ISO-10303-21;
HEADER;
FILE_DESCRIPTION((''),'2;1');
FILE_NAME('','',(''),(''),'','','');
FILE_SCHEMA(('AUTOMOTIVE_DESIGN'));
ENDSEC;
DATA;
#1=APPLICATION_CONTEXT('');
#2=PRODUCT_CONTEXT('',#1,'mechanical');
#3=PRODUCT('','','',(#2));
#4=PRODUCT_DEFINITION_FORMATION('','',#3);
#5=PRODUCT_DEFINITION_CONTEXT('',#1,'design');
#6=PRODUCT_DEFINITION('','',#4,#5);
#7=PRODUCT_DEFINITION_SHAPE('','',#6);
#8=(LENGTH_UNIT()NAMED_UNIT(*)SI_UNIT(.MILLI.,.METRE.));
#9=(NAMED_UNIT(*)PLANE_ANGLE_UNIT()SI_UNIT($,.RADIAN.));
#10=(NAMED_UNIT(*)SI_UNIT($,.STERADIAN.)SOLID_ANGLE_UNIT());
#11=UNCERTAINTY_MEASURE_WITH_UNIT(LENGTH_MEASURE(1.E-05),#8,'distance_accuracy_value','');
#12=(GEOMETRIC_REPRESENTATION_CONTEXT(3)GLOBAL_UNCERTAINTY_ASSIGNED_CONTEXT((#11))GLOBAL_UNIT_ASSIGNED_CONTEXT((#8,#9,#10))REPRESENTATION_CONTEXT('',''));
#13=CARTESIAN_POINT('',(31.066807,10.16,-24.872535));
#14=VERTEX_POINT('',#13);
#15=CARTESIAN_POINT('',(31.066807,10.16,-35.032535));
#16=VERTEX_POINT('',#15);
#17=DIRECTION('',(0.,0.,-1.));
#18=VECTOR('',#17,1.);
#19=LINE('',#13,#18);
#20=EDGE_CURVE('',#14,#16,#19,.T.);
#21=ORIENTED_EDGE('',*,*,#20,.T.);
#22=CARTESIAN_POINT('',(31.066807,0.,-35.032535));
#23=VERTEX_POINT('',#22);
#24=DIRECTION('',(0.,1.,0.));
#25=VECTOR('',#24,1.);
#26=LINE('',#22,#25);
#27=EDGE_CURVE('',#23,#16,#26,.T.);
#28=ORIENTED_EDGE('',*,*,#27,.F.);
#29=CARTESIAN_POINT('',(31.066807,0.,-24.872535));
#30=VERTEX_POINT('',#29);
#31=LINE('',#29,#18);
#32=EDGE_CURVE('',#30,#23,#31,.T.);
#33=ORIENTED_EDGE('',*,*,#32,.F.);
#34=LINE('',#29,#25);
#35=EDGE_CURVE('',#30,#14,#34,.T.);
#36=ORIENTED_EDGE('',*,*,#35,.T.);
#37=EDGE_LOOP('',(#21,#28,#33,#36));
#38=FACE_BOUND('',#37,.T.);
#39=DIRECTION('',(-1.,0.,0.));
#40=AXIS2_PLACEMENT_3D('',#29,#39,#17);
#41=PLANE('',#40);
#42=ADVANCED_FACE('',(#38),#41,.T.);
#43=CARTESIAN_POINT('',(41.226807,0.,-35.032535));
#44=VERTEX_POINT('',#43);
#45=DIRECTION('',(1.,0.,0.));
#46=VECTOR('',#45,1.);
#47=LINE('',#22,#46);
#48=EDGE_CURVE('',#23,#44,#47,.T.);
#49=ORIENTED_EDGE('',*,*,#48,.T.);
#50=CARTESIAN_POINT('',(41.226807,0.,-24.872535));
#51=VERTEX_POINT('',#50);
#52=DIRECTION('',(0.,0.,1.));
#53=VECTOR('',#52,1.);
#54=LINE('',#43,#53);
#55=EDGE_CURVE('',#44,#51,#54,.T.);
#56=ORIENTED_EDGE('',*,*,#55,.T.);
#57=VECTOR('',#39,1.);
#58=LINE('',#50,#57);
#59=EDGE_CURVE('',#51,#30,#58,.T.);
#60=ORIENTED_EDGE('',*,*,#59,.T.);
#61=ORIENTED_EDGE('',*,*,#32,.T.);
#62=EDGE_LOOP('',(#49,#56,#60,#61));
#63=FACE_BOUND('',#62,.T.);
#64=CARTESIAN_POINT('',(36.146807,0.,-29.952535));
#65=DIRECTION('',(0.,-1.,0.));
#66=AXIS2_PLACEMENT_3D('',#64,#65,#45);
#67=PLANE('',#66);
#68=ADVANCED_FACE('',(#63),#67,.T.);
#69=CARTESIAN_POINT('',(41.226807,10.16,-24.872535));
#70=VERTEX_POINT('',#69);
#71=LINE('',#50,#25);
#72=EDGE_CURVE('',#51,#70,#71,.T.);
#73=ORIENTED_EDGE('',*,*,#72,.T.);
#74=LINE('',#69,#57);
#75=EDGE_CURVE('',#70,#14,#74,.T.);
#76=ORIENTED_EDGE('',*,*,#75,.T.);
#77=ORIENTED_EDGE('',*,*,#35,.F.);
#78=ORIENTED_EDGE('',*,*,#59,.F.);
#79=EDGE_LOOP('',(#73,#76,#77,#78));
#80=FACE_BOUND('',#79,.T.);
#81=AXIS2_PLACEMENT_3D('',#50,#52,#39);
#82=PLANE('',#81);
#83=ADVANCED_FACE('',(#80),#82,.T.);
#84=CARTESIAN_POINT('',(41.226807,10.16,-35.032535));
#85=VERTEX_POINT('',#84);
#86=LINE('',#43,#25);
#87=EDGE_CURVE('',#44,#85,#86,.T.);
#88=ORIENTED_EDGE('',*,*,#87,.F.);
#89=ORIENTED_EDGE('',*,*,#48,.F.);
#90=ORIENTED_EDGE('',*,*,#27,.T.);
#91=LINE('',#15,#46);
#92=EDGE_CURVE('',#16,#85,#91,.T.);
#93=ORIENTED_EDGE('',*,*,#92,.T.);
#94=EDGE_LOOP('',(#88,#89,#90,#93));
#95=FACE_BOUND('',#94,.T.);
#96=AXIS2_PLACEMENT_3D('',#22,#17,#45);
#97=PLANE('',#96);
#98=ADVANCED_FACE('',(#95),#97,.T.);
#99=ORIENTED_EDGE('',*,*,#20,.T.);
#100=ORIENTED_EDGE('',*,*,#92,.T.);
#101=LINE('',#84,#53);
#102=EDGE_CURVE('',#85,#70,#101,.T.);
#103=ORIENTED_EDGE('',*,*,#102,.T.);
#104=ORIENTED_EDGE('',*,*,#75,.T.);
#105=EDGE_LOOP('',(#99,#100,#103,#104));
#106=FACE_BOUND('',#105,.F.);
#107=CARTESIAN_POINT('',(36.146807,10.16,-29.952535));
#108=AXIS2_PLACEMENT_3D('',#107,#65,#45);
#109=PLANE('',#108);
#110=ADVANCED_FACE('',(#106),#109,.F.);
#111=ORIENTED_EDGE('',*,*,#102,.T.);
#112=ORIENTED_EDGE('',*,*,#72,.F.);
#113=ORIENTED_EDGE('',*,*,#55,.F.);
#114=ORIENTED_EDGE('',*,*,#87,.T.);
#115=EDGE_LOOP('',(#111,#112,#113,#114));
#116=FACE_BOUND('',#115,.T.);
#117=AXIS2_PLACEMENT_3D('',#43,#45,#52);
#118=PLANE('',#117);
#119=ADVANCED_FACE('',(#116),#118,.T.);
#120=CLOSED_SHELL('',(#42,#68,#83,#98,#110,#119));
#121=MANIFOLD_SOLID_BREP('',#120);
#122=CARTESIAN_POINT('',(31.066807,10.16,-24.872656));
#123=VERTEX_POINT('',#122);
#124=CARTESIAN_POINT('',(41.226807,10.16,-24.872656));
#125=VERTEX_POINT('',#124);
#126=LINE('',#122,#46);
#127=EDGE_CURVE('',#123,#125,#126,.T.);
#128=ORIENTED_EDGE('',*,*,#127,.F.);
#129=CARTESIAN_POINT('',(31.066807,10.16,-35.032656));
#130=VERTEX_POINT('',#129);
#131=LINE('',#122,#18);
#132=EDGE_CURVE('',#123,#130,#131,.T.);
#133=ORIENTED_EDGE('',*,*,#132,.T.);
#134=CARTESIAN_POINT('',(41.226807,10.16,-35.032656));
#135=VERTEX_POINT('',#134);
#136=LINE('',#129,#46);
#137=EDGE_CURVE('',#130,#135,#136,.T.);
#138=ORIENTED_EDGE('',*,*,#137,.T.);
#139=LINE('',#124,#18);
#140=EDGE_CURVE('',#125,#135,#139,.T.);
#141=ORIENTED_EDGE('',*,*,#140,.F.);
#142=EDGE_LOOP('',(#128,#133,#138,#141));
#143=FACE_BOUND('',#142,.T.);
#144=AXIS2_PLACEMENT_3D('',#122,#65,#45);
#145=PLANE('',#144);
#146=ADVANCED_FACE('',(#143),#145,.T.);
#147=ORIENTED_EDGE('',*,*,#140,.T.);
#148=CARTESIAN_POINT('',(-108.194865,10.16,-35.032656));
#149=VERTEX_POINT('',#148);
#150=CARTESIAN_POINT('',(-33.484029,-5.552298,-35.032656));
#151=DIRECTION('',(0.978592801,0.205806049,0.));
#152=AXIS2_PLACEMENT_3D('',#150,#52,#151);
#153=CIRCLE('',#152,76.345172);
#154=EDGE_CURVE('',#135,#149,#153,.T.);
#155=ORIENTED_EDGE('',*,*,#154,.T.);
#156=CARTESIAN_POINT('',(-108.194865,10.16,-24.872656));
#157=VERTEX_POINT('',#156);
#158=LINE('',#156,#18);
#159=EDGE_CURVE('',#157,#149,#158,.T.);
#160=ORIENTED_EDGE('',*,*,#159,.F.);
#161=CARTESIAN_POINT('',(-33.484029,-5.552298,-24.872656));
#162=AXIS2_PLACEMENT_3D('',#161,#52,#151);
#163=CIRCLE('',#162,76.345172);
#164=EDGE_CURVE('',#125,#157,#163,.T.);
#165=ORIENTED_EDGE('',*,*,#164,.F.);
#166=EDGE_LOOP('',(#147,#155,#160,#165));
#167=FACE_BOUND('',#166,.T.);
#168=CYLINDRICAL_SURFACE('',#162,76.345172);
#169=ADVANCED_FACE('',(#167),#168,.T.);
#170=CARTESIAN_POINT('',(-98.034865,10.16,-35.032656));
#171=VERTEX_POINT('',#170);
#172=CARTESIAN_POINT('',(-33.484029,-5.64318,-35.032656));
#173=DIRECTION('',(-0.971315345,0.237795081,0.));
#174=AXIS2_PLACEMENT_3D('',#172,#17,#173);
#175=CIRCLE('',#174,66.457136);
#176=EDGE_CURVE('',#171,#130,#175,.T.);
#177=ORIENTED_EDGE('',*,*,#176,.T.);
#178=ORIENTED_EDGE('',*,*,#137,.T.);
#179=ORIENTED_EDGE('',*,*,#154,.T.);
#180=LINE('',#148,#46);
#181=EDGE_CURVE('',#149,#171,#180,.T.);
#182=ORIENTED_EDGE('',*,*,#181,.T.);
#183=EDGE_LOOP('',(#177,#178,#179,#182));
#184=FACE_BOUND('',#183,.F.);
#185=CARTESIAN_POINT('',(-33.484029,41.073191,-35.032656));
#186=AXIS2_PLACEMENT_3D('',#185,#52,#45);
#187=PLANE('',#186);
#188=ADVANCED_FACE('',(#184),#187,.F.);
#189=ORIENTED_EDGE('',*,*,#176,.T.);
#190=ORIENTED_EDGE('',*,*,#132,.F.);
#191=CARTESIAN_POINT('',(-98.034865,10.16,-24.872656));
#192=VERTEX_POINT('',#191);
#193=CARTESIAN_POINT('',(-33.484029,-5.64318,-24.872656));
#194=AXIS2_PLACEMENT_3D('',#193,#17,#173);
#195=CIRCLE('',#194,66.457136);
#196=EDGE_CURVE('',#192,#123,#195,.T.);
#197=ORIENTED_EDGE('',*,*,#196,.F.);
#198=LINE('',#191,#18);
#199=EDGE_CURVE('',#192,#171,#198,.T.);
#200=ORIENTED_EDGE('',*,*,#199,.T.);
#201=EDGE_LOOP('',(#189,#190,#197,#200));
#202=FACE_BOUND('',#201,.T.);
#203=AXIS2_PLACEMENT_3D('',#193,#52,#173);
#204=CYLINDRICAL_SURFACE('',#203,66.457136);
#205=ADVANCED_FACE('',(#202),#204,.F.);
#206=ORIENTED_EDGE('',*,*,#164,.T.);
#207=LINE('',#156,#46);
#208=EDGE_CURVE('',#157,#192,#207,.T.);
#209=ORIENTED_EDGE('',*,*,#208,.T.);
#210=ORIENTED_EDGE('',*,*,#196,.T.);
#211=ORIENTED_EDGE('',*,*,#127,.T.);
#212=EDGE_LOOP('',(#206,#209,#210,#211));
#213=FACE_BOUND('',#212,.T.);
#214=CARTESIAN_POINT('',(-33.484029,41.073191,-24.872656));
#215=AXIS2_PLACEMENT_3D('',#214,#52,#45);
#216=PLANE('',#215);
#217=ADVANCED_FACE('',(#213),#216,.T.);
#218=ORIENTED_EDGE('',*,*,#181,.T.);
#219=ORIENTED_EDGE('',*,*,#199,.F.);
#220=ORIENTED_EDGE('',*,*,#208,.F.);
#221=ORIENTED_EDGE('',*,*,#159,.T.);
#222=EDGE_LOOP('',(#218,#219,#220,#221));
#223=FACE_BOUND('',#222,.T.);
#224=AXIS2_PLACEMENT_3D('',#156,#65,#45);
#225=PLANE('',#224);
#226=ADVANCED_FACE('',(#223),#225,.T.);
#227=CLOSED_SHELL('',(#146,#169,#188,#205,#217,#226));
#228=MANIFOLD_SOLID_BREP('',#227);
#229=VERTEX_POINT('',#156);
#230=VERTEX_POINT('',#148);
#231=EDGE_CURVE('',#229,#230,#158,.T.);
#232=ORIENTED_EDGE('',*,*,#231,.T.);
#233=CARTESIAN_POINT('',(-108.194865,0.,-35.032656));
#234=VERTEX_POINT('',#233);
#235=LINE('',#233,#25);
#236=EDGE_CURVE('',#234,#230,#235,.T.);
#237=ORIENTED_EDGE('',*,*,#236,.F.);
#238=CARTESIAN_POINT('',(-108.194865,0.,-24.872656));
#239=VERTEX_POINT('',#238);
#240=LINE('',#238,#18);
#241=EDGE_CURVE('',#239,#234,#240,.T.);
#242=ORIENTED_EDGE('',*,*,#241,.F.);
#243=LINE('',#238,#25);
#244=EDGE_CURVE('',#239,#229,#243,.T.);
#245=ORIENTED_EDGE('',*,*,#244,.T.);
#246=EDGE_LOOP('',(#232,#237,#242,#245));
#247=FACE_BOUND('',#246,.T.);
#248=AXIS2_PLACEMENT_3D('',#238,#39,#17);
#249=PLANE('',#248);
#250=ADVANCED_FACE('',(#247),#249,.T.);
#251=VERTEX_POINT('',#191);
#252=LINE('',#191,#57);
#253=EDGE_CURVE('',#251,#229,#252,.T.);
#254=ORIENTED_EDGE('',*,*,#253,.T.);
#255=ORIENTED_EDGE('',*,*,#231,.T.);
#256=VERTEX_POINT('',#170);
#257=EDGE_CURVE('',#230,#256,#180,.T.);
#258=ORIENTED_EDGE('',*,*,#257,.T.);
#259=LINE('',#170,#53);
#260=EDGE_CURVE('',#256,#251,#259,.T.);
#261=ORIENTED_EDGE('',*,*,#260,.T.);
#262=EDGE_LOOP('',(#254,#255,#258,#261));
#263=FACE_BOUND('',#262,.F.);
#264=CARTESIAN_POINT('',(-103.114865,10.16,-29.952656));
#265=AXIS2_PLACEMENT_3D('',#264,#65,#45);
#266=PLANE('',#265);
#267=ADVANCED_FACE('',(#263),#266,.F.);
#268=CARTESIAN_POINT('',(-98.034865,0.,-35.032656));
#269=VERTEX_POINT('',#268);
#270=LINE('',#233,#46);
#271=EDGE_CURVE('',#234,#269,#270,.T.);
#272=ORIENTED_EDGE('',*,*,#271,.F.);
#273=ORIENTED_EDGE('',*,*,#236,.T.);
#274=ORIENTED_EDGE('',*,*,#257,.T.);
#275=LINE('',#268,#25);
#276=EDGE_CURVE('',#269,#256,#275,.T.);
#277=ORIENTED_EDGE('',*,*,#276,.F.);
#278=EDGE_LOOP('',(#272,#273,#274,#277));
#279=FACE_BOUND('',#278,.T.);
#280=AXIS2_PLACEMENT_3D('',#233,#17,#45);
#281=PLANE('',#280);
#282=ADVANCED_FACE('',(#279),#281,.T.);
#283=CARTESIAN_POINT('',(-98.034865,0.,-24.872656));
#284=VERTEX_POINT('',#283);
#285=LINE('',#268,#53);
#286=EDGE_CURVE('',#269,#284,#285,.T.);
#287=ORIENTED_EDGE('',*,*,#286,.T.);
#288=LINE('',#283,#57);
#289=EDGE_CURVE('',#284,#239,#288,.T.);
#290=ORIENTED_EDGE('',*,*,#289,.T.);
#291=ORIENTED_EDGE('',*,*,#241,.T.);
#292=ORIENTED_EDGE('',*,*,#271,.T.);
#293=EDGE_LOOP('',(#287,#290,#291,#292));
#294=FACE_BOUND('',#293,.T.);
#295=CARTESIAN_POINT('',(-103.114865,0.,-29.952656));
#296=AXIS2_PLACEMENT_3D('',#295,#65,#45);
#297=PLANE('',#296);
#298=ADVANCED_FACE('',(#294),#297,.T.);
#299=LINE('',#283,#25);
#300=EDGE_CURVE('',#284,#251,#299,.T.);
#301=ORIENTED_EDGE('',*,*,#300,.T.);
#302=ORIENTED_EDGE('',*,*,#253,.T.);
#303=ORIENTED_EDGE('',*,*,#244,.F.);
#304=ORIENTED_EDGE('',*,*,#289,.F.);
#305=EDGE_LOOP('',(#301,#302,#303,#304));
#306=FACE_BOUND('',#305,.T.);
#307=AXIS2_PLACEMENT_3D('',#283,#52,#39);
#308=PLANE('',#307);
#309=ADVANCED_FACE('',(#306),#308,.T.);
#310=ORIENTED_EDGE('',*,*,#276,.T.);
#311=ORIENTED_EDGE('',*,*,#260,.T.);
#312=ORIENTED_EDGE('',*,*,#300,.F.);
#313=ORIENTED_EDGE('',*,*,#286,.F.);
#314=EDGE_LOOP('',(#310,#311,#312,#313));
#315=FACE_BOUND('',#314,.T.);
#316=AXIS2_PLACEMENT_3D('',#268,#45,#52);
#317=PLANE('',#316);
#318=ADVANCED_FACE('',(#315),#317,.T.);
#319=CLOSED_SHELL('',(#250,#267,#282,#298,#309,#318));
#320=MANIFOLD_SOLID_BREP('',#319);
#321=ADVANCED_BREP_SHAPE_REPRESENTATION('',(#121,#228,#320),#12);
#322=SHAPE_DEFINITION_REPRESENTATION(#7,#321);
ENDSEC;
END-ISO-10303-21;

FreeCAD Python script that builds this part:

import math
import FreeCAD as App
import Part
import Sketcher

V = App.Vector
Q = App.Units.Quantity

doc = App.newDocument("Part")
body = doc.addObject("PartDesign::Body", "Body")
body.AllowCompound = True

sketch1 = doc.addObject("Sketcher::SketchObject", "Sketch")
body.addObject(sketch1)
sketch1.AttachmentSupport = (doc.XZ_Plane, [""])
sketch1.MapMode = "FlatFace"
sketch1.addGeometry([
    Part.LineSegment(V(-108.194865, -24.872656, 0), V(-108.194865, -35.032656, 0)),
    Part.LineSegment(V(-108.194865, -35.032656, 0), V(-98.034865, -35.032656, 0)),
    Part.LineSegment(V(-98.034865, -35.032656, 0), V(-98.034865, -24.872656, 0)),
    Part.LineSegment(V(-98.034865, -24.872656, 0), V(-108.194865, -24.872656, 0)),
    Part.LineSegment(V(31.066807, -24.872535, 0), V(31.066807, -35.032535, 0)),
    Part.LineSegment(V(31.066807, -35.032535, 0), V(41.226807, -35.032535, 0)),
    Part.LineSegment(V(41.226807, -35.032535, 0), V(41.226807, -24.872535, 0)),
    Part.LineSegment(V(41.226807, -24.872535, 0), V(31.066807, -24.872535, 0)),
], False)
sketch1.addConstraint([
    Sketcher.Constraint("Coincident", 0, 2, 1, 1),
    Sketcher.Constraint("Coincident", 1, 2, 2, 1),
    Sketcher.Constraint("Coincident", 2, 2, 3, 1),
    Sketcher.Constraint("Coincident", 3, 2, 0, 1),
    Sketcher.Constraint("Coincident", 4, 2, 5, 1),
    Sketcher.Constraint("Coincident", 5, 2, 6, 1),
    Sketcher.Constraint("Coincident", 6, 2, 7, 1),
    Sketcher.Constraint("Coincident", 7, 2, 4, 1),
    Sketcher.Constraint("Vertical", 0),
    Sketcher.Constraint("Horizontal", 1),
    Sketcher.Constraint("Vertical", 2),
    Sketcher.Constraint("Horizontal", 3),
    Sketcher.Constraint("Vertical", 4),
    Sketcher.Constraint("Horizontal", 5),
    Sketcher.Constraint("Vertical", 6),
    Sketcher.Constraint("Horizontal", 7),
    Sketcher.Constraint("Equal", 3, 5),
    Sketcher.Constraint("Equal", 7, 0),
    Sketcher.Constraint("Equal", 2, 4),
    Sketcher.Constraint("DistanceX", 1, 1, 1, 2, Q("0.4 in")),
    Sketcher.Constraint("DistanceX", 1, 2, 4, 2, 129.101672),
    Sketcher.Constraint("DistanceY", 1, 2, 4, 2, 0.000121),
    Sketcher.Constraint("DistanceX", 0, 2, -1, 1, 108.194865),
    Sketcher.Constraint("DistanceY", 0, 2, -1, 1, 35.032656),
])
pad1 = doc.addObject("PartDesign::Pad", "Pad")
body.addObject(pad1)
pad1.Profile = sketch1
pad1.Length = Q("0.4 in")
pad1.Reversed = True
body2 = doc.addObject("PartDesign::Body", "Body001")

sketch2 = doc.addObject("Sketcher::SketchObject", "Sketch001")
body2.addObject(sketch2)
sketch2.AttachmentSupport = (doc.getObject("XY_Plane001"), [""])
sketch2.MapMode = "FlatFace"
sketch2.AttachmentOffset = App.Placement(V(0, 0, -24.872656), App.Rotation())
sketch2.addGeometry([
    Part.LineSegment(V(-108.194865, 10.16, 0), V(-98.034865, 10.16, 0)),
    Part.ArcOfCircle(Part.Circle(V(-33.484029, -5.64318, 0), V(0, 0, 1), 66.457136), math.radians(13.756441), math.radians(166.243559)),
    Part.LineSegment(V(31.066807, 10.16, 0), V(41.226807, 10.16, 0)),
    Part.ArcOfCircle(Part.Circle(V(-33.484029, -5.552298, 0), V(0, 0, 1), 76.345172), math.radians(11.876688), math.radians(168.123312)),
], False)
sketch2.addConstraint([
    Sketcher.Constraint("Coincident", 0, 2, 1, 2),
    Sketcher.Constraint("Coincident", 1, 1, 2, 1),
    Sketcher.Constraint("Coincident", 2, 2, 3, 1),
    Sketcher.Constraint("Coincident", 3, 2, 0, 1),
    Sketcher.Constraint("Horizontal", 0),
    Sketcher.Constraint("Horizontal", 2),
    Sketcher.Constraint("Horizontal", 0, 2, 1, 1),
    Sketcher.Constraint("Vertical", 1, 3, 3, 3),
    Sketcher.Constraint("DistanceX", 0, 1, 0, 2, Q("0.4 in")),
    Sketcher.Constraint("DistanceY", -1, 1, 0, 2, Q("0.4 in")),
    Sketcher.Constraint("Radius", 1, 66.457136),
    Sketcher.Constraint("Radius", 3, 76.345172),
    Sketcher.Constraint("DistanceY", 3, 3, -1, 1, 5.552298),
    Sketcher.Constraint("DistanceX", 1, 3, -1, 1, 33.484029),
])
pad2 = doc.addObject("PartDesign::Pad", "Pad001")
body2.addObject(pad2)
pad2.Profile = sketch2
pad2.Length = Q("0.4 in")
pad2.Reversed = True

doc.recompute()
